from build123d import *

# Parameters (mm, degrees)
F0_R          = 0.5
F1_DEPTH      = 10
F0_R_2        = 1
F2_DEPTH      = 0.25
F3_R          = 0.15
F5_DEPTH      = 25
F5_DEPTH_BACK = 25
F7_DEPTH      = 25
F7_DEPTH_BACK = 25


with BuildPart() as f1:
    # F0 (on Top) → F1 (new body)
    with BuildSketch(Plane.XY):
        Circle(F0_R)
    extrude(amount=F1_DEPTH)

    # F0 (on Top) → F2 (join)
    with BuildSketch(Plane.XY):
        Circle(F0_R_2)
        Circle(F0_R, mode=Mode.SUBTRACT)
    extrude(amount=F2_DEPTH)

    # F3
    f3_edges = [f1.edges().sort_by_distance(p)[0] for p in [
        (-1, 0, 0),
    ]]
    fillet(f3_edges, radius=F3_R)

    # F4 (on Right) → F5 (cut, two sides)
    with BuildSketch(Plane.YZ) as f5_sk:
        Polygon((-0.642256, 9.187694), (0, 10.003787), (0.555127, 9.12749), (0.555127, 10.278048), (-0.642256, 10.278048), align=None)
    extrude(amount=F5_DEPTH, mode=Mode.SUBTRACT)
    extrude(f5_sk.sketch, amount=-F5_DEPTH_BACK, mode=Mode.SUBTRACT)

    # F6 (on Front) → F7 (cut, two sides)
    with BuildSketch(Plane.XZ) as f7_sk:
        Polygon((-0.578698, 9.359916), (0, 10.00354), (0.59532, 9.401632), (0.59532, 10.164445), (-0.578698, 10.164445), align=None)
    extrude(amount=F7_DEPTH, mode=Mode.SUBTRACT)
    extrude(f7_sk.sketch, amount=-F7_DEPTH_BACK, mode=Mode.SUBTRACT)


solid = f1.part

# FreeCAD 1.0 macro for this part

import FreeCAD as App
import Part
import Sketcher

V = App.Vector


def edges_at(feature, points):
    """Names of the edges that pass closest to the given points."""
    edges = feature.Shape.Edges
    near = lambda p: min(range(len(edges)), key=lambda i: edges[i].distToShape(Part.Vertex(*p))[0])
    return sorted({f"Edge{near(p) + 1}" for p in points})

doc = App.newDocument("Part")
body = doc.addObject("PartDesign::Body", "Body")

sketch1 = body.newObject("Sketcher::SketchObject", "Sketch")
sketch1.AttachmentSupport = (doc.getObject("XY_Plane"), [""])
sketch1.MapMode = "FlatFace"
sketch1.addGeometry(Part.Circle(V(0, 0, 0), V(0, 0, 1), 0.5), False)
sketch1.addConstraint(Sketcher.Constraint("Coincident", 0, 3, -1, 1))
sketch1.addConstraint(Sketcher.Constraint("Diameter", 0, 1.0))
pad1 = body.newObject("PartDesign::Pad", "Pad")
pad1.Profile = sketch1
pad1.Length = 10

sketch2 = body.newObject("Sketcher::SketchObject", "Sketch001")
sketch2.AttachmentSupport = (doc.getObject("XY_Plane"), [""])
sketch2.MapMode = "FlatFace"
sketch2.addGeometry(Part.Circle(V(0, 0, 0), V(0, 0, 1), 1), False)
sketch2.addGeometry(Part.Circle(V(0, 0, 0), V(0, 0, 1), 0.5), False)
sketch2.addConstraint(Sketcher.Constraint("Coincident", 0, 3, -1, 1))
sketch2.addConstraint(Sketcher.Constraint("Coincident", 1, 3, -1, 1))
sketch2.addConstraint(Sketcher.Constraint("Diameter", 0, 2.0))
sketch2.addConstraint(Sketcher.Constraint("Diameter", 1, 1.0))
pad2 = body.newObject("PartDesign::Pad", "Pad001")
pad2.Profile = sketch2
pad2.Length = 0.25
doc.recompute()

fillet = body.newObject("PartDesign::Fillet", "Fillet")
fillet.Base = (pad2, edges_at(pad2, [(-1, 0, 0)]))
fillet.Radius = 0.15

sketch3 = body.newObject("Sketcher::SketchObject", "Sketch002")
sketch3.AttachmentSupport = (doc.getObject("YZ_Plane"), [""])
sketch3.MapMode = "FlatFace"
sketch3.addGeometry(Part.LineSegment(V(-0.642256, 9.187694, 0), V(0, 10.003787, 0)), False)
sketch3.addGeometry(Part.LineSegment(V(0, 10.003787, 0), V(0.555127, 9.12749, 0)), False)
sketch3.addGeometry(Part.LineSegment(V(0.555127, 9.12749, 0), V(0.555127, 10.278048, 0)), False)
sketch3.addGeometry(Part.LineSegment(V(0.555127, 10.278048, 0), V(-0.642256, 10.278048, 0)), False)
sketch3.addGeometry(Part.LineSegment(V(-0.642256, 10.278048, 0), V(-0.642256, 9.187694, 0)), False)
sketch3.addConstraint(Sketcher.Constraint("Coincident", 0, 2, 1, 1))
sketch3.addConstraint(Sketcher.Constraint("Coincident", 1, 2, 2, 1))
sketch3.addConstraint(Sketcher.Constraint("Coincident", 2, 2, 3, 1))
sketch3.addConstraint(Sketcher.Constraint("Coincident", 3, 2, 4, 1))
sketch3.addConstraint(Sketcher.Constraint("Coincident", 4, 2, 0, 1))
sketch3.addConstraint(Sketcher.Constraint("Vertical", 2))
sketch3.addConstraint(Sketcher.Constraint("Horizontal", 3))
sketch3.addConstraint(Sketcher.Constraint("Vertical", 4))
sketch3.addConstraint(Sketcher.Constraint("PointOnObject", 0, 2, -2))
sketch3.addConstraint(Sketcher.Constraint("DistanceY", 2, 1, 2, 2, 1.150558))
sketch3.addConstraint(Sketcher.Constraint("Distance", 0, 1.038509))
sketch3.addConstraint(Sketcher.Constraint("DistanceX", 3, 2, 3, 1, 1.197383))
sketch3.addConstraint(Sketcher.Constraint("DistanceY", 4, 2, 4, 1, 1.090354))
sketch3.addConstraint(Sketcher.Constraint("DistanceY", -1, 1, 1, 2, 9.12749))
sketch3.addConstraint(Sketcher.Constraint("DistanceY", 0, 2, 2, 2, 0.274261))
pocket1 = body.newObject("PartDesign::Pocket", "Pocket")
pocket1.Profile = sketch3
pocket1.Type = "ThroughAll"
pocket1.Midplane = True

sketch4 = body.newObject("Sketcher::SketchObject", "Sketch003")
sketch4.AttachmentSupport = (doc.getObject("XZ_Plane"), [""])
sketch4.MapMode = "FlatFace"
sketch4.addGeometry(Part.LineSegment(V(-0.578698, 9.359916, 0), V(0, 10.00354, 0)), False)
sketch4.addGeometry(Part.LineSegment(V(0, 10.00354, 0), V(0.59532, 9.401632, 0)), False)
sketch4.addGeometry(Part.LineSegment(V(0.59532, 9.401632, 0), V(0.59532, 10.164445, 0)), False)
sketch4.addGeometry(Part.LineSegment(V(0.59532, 10.164445, 0), V(-0.578698, 10.164445, 0)), False)
sketch4.addGeometry(Part.LineSegment(V(-0.578698, 10.164445, 0), V(-0.578698, 9.359916, 0)), False)
sketch4.addConstraint(Sketcher.Constraint("Coincident", 0, 2, 1, 1))
sketch4.addConstraint(Sketcher.Constraint("Coincident", 1, 2, 2, 1))
sketch4.addConstraint(Sketcher.Constraint("Coincident", 2, 2, 3, 1))
sketch4.addConstraint(Sketcher.Constraint("Coincident", 3, 2, 4, 1))
sketch4.addConstraint(Sketcher.Constraint("Coincident", 4, 2, 0, 1))
sketch4.addConstraint(Sketcher.Constraint("Vertical", 2))
sketch4.addConstraint(Sketcher.Constraint("Horizontal", 3))
sketch4.addConstraint(Sketcher.Constraint("Vertical", 4))
sketch4.addConstraint(Sketcher.Constraint("PointOnObject", 0, 2, -2))
sketch4.addConstraint(Sketcher.Constraint("DistanceY", 4, 2, 4, 1, 0.804529))
sketch4.addConstraint(Sketcher.Constraint("DistanceX", 3, 2, -1, 1, 0.578698))
sketch4.addConstraint(Sketcher.Constraint("Distance", 0, 0.865531))
sketch4.addConstraint(Sketcher.Constraint("Distance", 1, 0.846581))
sketch4.addConstraint(Sketcher.Constraint("DistanceX", 3, 2, 3, 1, 1.174018))
sketch4.addConstraint(Sketcher.Constraint("DistanceY", -1, 1, 0, 2, 10.00354))
pocket2 = body.newObject("PartDesign::Pocket", "Pocket001")
pocket2.Profile = sketch4
pocket2.Type = "ThroughAll"
pocket2.Midplane = True

doc.recompute()
